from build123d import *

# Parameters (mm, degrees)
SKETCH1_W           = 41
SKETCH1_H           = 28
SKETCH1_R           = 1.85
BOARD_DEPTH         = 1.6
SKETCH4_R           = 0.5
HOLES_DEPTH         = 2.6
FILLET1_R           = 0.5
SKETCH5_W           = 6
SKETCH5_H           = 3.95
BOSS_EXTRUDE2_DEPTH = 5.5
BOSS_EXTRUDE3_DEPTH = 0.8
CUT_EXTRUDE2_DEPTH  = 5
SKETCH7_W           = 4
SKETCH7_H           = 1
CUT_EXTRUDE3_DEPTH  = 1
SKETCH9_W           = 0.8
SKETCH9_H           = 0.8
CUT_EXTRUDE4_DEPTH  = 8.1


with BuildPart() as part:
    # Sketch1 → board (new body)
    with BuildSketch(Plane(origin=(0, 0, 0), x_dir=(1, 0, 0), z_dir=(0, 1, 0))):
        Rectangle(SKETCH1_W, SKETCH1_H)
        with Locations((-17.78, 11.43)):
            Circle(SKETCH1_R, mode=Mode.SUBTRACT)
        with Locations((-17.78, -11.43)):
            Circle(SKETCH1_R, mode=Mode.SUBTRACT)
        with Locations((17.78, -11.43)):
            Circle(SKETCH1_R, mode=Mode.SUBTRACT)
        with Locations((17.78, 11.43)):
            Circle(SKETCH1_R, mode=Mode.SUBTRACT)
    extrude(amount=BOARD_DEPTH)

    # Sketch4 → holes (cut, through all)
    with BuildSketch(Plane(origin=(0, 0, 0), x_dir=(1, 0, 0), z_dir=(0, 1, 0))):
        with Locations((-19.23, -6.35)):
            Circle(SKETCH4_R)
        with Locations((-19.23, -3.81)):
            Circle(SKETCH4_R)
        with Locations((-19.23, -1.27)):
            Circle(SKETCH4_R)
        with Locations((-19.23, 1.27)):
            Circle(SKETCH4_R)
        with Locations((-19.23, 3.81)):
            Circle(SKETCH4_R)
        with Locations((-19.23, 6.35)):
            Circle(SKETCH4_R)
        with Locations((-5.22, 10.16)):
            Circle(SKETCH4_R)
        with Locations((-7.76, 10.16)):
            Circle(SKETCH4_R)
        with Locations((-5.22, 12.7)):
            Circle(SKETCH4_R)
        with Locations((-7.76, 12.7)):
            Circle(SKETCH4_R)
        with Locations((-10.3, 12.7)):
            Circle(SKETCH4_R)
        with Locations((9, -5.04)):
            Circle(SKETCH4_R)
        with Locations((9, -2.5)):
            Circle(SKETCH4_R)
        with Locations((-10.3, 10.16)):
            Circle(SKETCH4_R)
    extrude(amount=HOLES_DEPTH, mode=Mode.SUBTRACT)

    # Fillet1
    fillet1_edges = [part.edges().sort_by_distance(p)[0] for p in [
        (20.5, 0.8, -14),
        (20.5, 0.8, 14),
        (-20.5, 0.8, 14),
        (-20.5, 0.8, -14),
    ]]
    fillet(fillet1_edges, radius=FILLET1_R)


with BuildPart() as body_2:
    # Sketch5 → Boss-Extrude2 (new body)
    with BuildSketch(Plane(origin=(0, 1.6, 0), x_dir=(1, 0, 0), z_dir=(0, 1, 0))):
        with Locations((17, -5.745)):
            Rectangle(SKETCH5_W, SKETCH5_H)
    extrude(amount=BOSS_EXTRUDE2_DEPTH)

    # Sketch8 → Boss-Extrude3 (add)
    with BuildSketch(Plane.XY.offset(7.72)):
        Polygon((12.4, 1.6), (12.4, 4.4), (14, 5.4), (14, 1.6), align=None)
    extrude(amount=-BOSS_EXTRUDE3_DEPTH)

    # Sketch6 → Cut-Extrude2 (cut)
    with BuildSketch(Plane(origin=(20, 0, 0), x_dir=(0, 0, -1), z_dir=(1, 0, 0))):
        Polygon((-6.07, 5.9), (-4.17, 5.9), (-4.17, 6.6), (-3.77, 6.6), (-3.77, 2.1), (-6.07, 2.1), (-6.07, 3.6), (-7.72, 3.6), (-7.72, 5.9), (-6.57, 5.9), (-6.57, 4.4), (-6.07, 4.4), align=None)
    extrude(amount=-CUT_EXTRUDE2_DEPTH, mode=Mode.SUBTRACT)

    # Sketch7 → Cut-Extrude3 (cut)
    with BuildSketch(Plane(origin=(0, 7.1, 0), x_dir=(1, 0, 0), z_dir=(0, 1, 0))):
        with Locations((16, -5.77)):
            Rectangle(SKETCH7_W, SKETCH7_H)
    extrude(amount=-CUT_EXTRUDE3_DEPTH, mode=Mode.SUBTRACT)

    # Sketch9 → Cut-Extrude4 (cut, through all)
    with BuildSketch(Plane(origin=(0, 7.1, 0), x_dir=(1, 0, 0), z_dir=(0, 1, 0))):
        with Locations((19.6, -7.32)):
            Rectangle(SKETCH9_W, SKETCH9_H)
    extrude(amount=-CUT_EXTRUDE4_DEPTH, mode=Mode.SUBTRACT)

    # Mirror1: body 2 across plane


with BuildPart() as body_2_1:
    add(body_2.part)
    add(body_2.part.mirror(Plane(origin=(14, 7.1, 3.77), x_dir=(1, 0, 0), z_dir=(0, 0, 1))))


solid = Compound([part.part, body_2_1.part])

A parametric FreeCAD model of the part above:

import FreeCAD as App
import Part
import Sketcher


def edges_at(feature, points):
    """Names of the edges that pass closest to the given points."""
    edges = feature.Shape.Edges
    near = lambda p: min(range(len(edges)), key=lambda i: edges[i].distToShape(Part.Vertex(*p))[0])
    return sorted({f"Edge{near(p) + 1}" for p in points})


def add_polygon(sketch, points):
    """Adds a closed chain of lines whose ends are joined by coincident constraints."""
    first, n = sketch.GeometryCount, len(points)
    for a, b in zip(points, points[1:] + points[:1]):
        sketch.addGeometry(Part.LineSegment(App.Vector(*a, 0), App.Vector(*b, 0)), False)
    for i in range(n):
        sketch.addConstraint(Sketcher.Constraint("Coincident", first + i, 2, first + (i + 1) % n, 1))

doc = App.newDocument("Part")
params = doc.addObject("Spreadsheet::Sheet", "Params")
for row, (alias, value) in enumerate([
    ("sketch1_diameter", "3.7 mm"),
    ("sketch1_width", "41 mm"),
    ("sketch1_height", "28 mm"),
    ("pad1_length", "1.6 mm"),
    ("sketch2_diameter", "1 mm"),
    ("fillet_radius", "0.5 mm"),
    ("sketch3_width", "6 mm"),
    ("sketch3_height", "3.95 mm"),
    ("pad2_length", "5.5 mm"),
    ("sketch4_width", "1.6 mm"),
    ("sketch4_height", "2.8 mm"),
    ("sketch4_height2", "3.8 mm"),
    ("pad3_length", "0.8 mm"),
    ("sketch5_width", "1.5 mm"),
    ("sketch5_width2", "2.3 mm"),
    ("sketch5_width3", "4.5 mm"),
    ("sketch5_height", "1.9 mm"),
    ("sketch5_height2", "0.5 mm"),
    ("pocket2_length", "5 mm"),
    ("sketch6_width", "4 mm"),
    ("sketch6_height", "1 mm"),
    ("pocket3_length", "1 mm"),
    ("sketch7_width", "0.8 mm"),
], start=1):
    params.set(f"A{row}", alias)
    params.set(f"B{row}", "=" + value)
    params.setAlias(f"B{row}", alias)

body = doc.addObject("PartDesign::Body", "Body")

# Sketch on XZ plane
sketch1 = body.newObject("Sketcher::SketchObject", "Sketch")
sketch1.AttachmentSupport = (doc.getObject("XZ_Plane"), [""])
sketch1.MapMode = "FlatFace"
add_polygon(sketch1, [(-20.5, -14), (-20.5, 14), (20.5, 14), (20.5, -14)])  # lines 0-3
sketch1.addGeometry(Part.Circle(App.Vector(-17.8, 11.4, 0), App.Vector(0, 0, 1), 1.9), False)  # 4
sketch1.addGeometry(Part.Circle(App.Vector(17.8, 11.4, 0), App.Vector(0, 0, 1), 1.9), False)  # 5
sketch1.addGeometry(Part.Circle(App.Vector(-17.8, -11.4, 0), App.Vector(0, 0, 1), 1.9), False)  # 6
sketch1.addGeometry(Part.Circle(App.Vector(17.8, -11.4, 0), App.Vector(0, 0, 1), 1.9), False)  # 7
sketch1.addConstraint([
    Sketcher.Constraint("Vertical", 0),
    Sketcher.Constraint("Horizontal", 1),
    Sketcher.Constraint("Vertical", 2),
    Sketcher.Constraint("Horizontal", 3),
    Sketcher.Constraint("Equal", 4, 5),
    Sketcher.Constraint("Equal", 5, 6),
    Sketcher.Constraint("Equal", 6, 7),
    Sketcher.Constraint("Symmetric", 5, 3, 6, 3, -1, 1),
    Sketcher.Constraint("Symmetric", 4, 3, 7, 3, -1, 1),
    Sketcher.Constraint("Symmetric", 0, 2, 2, 2, -1, 1),
    Sketcher.Constraint("Symmetric", 4, 3, 5, 3, -2),
    Sketcher.Constraint("Diameter", 4, 3.7),
    Sketcher.Constraint("DistanceX", 1, 1, 1, 2, 41.0),
    Sketcher.Constraint("DistanceY", 0, 1, 0, 2, 28.0),
    Sketcher.Constraint("DistanceX", 4, 3, -1, 1, 17.78),
    Sketcher.Constraint("DistanceY", -1, 1, 4, 3, 11.43),
])
sketch1.setExpression("Constraints[15]", "Params.sketch1_diameter")
sketch1.setExpression("Constraints[16]", "Params.sketch1_width")
sketch1.setExpression("Constraints[17]", "Params.sketch1_height")
pad1 = body.newObject("PartDesign::Pad", "Pad")
pad1.Profile = sketch1
pad1.setExpression("Length", "Params.pad1_length")
pad1.Reversed = True

# Sketch on XZ plane
sketch2 = body.newObject("Sketcher::SketchObject", "Sketch001")
sketch2.AttachmentSupport = (doc.getObject("XZ_Plane"), [""])
sketch2.MapMode = "FlatFace"
sketch2.addGeometry([
    Part.Circle(App.Vector(-19.2, 6.3, 0), App.Vector(0, 0, 1), 0.5),  # 0
    Part.Circle(App.Vector(-19.2, 3.8, 0), App.Vector(0, 0, 1), 0.5),  # 1
    Part.Circle(App.Vector(-19.2, 1.3, 0), App.Vector(0, 0, 1), 0.5),  # 2
    Part.Circle(App.Vector(-19.2, -1.3, 0), App.Vector(0, 0, 1), 0.5),  # 3
    Part.Circle(App.Vector(-19.2, -3.8, 0), App.Vector(0, 0, 1), 0.5),  # 4
    Part.Circle(App.Vector(-19.2, -6.3, 0), App.Vector(0, 0, 1), 0.5),  # 5
    Part.Circle(App.Vector(-5.2, -10.2, 0), App.Vector(0, 0, 1), 0.5),  # 6
    Part.Circle(App.Vector(-7.8, -10.2, 0), App.Vector(0, 0, 1), 0.5),  # 7
    Part.Circle(App.Vector(-5.2, -12.7, 0), App.Vector(0, 0, 1), 0.5),  # 8
    Part.Circle(App.Vector(-7.8, -12.7, 0), App.Vector(0, 0, 1), 0.5),  # 9
    Part.Circle(App.Vector(-10.3, -12.7, 0), App.Vector(0, 0, 1), 0.5),  # 10
    Part.Circle(App.Vector(9, 5, 0), App.Vector(0, 0, 1), 0.5),  # 11
    Part.Circle(App.Vector(9, 2.5, 0), App.Vector(0, 0, 1), 0.5),  # 12
    Part.Circle(App.Vector(-10.3, -10.2, 0), App.Vector(0, 0, 1), 0.5),  # 13
], False)
sketch2.addConstraint([
    Sketcher.Constraint("Equal", 0, 1),
    Sketcher.Constraint("Equal", 1, 2),
    Sketcher.Constraint("Equal", 2, 3),
    Sketcher.Constraint("Equal", 3, 4),
    Sketcher.Constraint("Equal", 4, 5),
    Sketcher.Constraint("Equal", 5, 6),
    Sketcher.Constraint("Equal", 6, 7),
    Sketcher.Constraint("Equal", 7, 8),
    Sketcher.Constraint("Equal", 8, 9),
    Sketcher.Constraint("Equal", 9, 10),
    Sketcher.Constraint("Equal", 10, 11),
    Sketcher.Constraint("Equal", 11, 12),
    Sketcher.Constraint("Equal", 12, 13),
    Sketcher.Constraint("Symmetric", 2, 3, 3, 3, -1),
    Sketcher.Constraint("Symmetric", 1, 3, 4, 3, -1),
    Sketcher.Constraint("Symmetric", 0, 3, 5, 3, -1),
    Sketcher.Constraint("Horizontal", 6, 3, 7, 3),
    Sketcher.Constraint("Horizontal", 8, 3, 9, 3),
    Sketcher.Constraint("Horizontal", 9, 3, 10, 3),
    Sketcher.Constraint("Horizontal", 7, 3, 13, 3),
    Sketcher.Constraint("Vertical", 0, 3, 1, 3),
    Sketcher.Constraint("Vertical", 1, 3, 2, 3),
    Sketcher.Constraint("Vertical", 6, 3, 8, 3),
    Sketcher.Constraint("Vertical", 7, 3, 9, 3),
    Sketcher.Constraint("Vertical", 11, 3, 12, 3),
    Sketcher.Constraint("Vertical", 10, 3, 13, 3),
    Sketcher.Constraint("Diameter", 0, 1.0),
    Sketcher.Constraint("DistanceX", -1, 1, 11, 3, 9.0),
    Sketcher.Constraint("DistanceY", 8, 3, -1, 1, 12.7),
    Sketcher.Constraint("DistanceX", 10, 3, -1, 1, 10.3),
    Sketcher.Constraint("DistanceY", -1, 1, 12, 3, 2.5),
    Sketcher.Constraint("DistanceY", 5, 3, 0, 3, 12.7),
    Sketcher.Constraint("DistanceY", 6, 3, 11, 3, 15.2),
    Sketcher.Constraint("DistanceX", 0, 3, -1, 1, 19.23),
    Sketcher.Constraint("DistanceY", -1, 1, 1, 3, 3.81),
    Sketcher.Constraint("DistanceY", -1, 1, 2, 3, 1.27),
    Sketcher.Constraint("DistanceX", 6, 3, -1, 1, 5.22),
    Sketcher.Constraint("DistanceY", 6, 3, -1, 1, 10.16),
    Sketcher.Constraint("DistanceX", 7, 3, -1, 1, 7.76),
])
sketch2.setExpression("Constraints[26]", "Params.sketch2_diameter")
pocket1 = body.newObject("PartDesign::Pocket", "Pocket")
pocket1.Profile = sketch2
pocket1.Type = "ThroughAll"
doc.recompute()

fillet = body.newObject("PartDesign::Fillet", "Fillet")
fillet.Base = (pocket1, edges_at(pocket1, [
    (20.5, 0.8, -14),
    (20.5, 0.8, 14),
    (-20.5, 0.8, 14),
    (-20.5, 0.8, -14),
]))
fillet.setExpression("Radius", "Params.fillet_radius")
body2 = doc.addObject("PartDesign::Body", "Body001")

# Sketch on XZ plane
sketch3 = body2.newObject("Sketcher::SketchObject", "Sketch002")
sketch3.AttachmentSupport = (doc.getObject("XZ_Plane001"), [""])
sketch3.MapMode = "FlatFace"
sketch3.AttachmentOffset = App.Placement(App.Vector(0, 0, -1.6), App.Rotation())
add_polygon(sketch3, [(14, 3.8), (14, 7.7), (20, 7.7), (20, 3.8)])  # lines 0-3
sketch3.addConstraint([
    Sketcher.Constraint("Vertical", 0),
    Sketcher.Constraint("Horizontal", 1),
    Sketcher.Constraint("Vertical", 2),
    Sketcher.Constraint("Horizontal", 3),
    Sketcher.Constraint("DistanceX", 1, 1, 1, 2, 6.0),
    Sketcher.Constraint("DistanceX", -1, 1, 0, 2, 14.0),
    Sketcher.Constraint("DistanceY", 0, 1, 0, 2, 3.95),
    Sketcher.Constraint("DistanceY", -1, 1, 0, 2, 7.72),
])
sketch3.setExpression("Constraints[8]", "Params.sketch3_width")
sketch3.setExpression("Constraints[10]", "Params.sketch3_height")
pad2 = body2.newObject("PartDesign::Pad", "Pad001")
pad2.Profile = sketch3
pad2.setExpression("Length", "Params.pad2_length")
pad2.Reversed = True

# Sketch on XY plane
sketch4 = body2.newObject("Sketcher::SketchObject", "Sketch003")
sketch4.AttachmentSupport = (doc.getObject("XY_Plane001"), [""])
sketch4.MapMode = "FlatFace"
sketch4.AttachmentOffset = App.Placement(App.Vector(0, 0, 7.72), App.Rotation())
add_polygon(sketch4, [(12.4, 4.4), (12.4, 1.6), (14, 1.6), (14, 5.4)])  # lines 0-3
sketch4.addConstraint([
    Sketcher.Constraint("Vertical", 0),
    Sketcher.Constraint("Horizontal", 1),
    Sketcher.Constraint("Vertical", 2),
    Sketcher.Constraint("DistanceX", 1, 1, 1, 2, 1.6),
    Sketcher.Constraint("DistanceY", 0, 2, 0, 1, 2.8),
    Sketcher.Constraint("DistanceY", 2, 1, 2, 2, 3.8),
    Sketcher.Constraint("DistanceX", -1, 1, 1, 2, 14.0),
    Sketcher.Constraint("DistanceY", -1, 1, 0, 2, 1.6),
])
sketch4.setExpression("Constraints[7]", "Params.sketch4_width")
sketch4.setExpression("Constraints[8]", "Params.sketch4_height")
sketch4.setExpression("Constraints[9]", "Params.sketch4_height2")
pad3 = body2.newObject("PartDesign::Pad", "Pad002")
pad3.Profile = sketch4
pad3.setExpression("Length", "Params.pad3_length")
pad3.Reversed = True

# Sketch on YZ plane
sketch5 = body2.newObject("Sketcher::SketchObject", "Sketch004")
sketch5.AttachmentSupport = (doc.getObject("YZ_Plane001"), [""])
sketch5.MapMode = "FlatFace"
sketch5.AttachmentOffset = App.Placement(App.Vector(0, 0, 20), App.Rotation())
add_polygon(sketch5, [(5.9, 4.17), (5.9, 6.07), (4.4, 6.07), (4.4, 6.57), (5.9, 6.57), (5.9, 7.72), (3.6, 7.72), (3.6, 6.07), (2.1, 6.07), (2.1, 3.77), (6.6, 3.77), (6.6, 4.17)])  # lines 0-11
sketch5.addConstraint([
    Sketcher.Constraint("Vertical", 0),
    Sketcher.Constraint("Horizontal", 1),
    Sketcher.Constraint("Vertical", 2),
    Sketcher.Constraint("Horizontal", 3),
    Sketcher.Constraint("Vertical", 4),
    Sketcher.Constraint("Horizontal", 5),
    Sketcher.Constraint("Vertical", 6),
    Sketcher.Constraint("Horizontal", 7),
    Sketcher.Constraint("Vertical", 8),
    Sketcher.Constraint("Horizontal", 9),
    Sketcher.Constraint("Vertical", 10),
    Sketcher.Constraint("Horizontal", 11),
    Sketcher.Constraint("Horizontal", 1, 2, 6, 2),
    Sketcher.Constraint("Vertical", 0, 2, 3, 2),
    Sketcher.Constraint("Equal", 3, 7),
    Sketcher.Constraint("Equal", 5, 8),
    Sketcher.Constraint("DistanceX", 1, 2, 1, 1, 1.5),
    Sketcher.Constraint("DistanceX", 5, 2, 5, 1, 2.3),
    Sketcher.Constraint("DistanceX", 9, 1, 9, 2, 4.5),
    Sketcher.Constraint("DistanceY", 0, 1, 0, 2, 1.9),
    Sketcher.Constraint("DistanceY", 2, 1, 2, 2, 0.5),
    Sketcher.Constraint("DistanceY", 4, 1, 4, 2, 1.15),
    Sketcher.Constraint("DistanceX", -1, 1, 0, 2, 5.9),
    Sketcher.Constraint("DistanceY", -1, 1, 0, 2, 6.07),
])
sketch5.setExpression("Constraints[28]", "Params.sketch5_width")
sketch5.setExpression("Constraints[29]", "Params.sketch5_width2")
sketch5.setExpression("Constraints[30]", "Params.sketch5_width3")
sketch5.setExpression("Constraints[31]", "Params.sketch5_height")
sketch5.setExpression("Constraints[32]", "Params.sketch5_height2")
pocket2 = body2.newObject("PartDesign::Pocket", "Pocket001")
pocket2.Profile = sketch5
pocket2.setExpression("Length", "Params.pocket2_length")

# Sketch on XZ plane
sketch6 = body2.newObject("Sketcher::SketchObject", "Sketch005")
sketch6.AttachmentSupport = (doc.getObject("XZ_Plane001"), [""])
sketch6.MapMode = "FlatFace"
sketch6.AttachmentOffset = App.Placement(App.Vector(0, 0, -7.1), App.Rotation())
add_polygon(sketch6, [(14, 5.3), (14, 6.3), (18, 6.3), (18, 5.3)])  # lines 0-3
sketch6.addConstraint([
    Sketcher.Constraint("Vertical", 0),
    Sketcher.Constraint("Horizontal", 1),
    Sketcher.Constraint("Vertical", 2),
    Sketcher.Constraint("Horizontal", 3),
    Sketcher.Constraint("DistanceX", 1, 1, 1, 2, 4.0),
    Sketcher.Constraint("DistanceY", 0, 1, 0, 2, 1.0),
    Sketcher.Constraint("DistanceX", -1, 1, 0, 2, 14.0),
    Sketcher.Constraint("DistanceY", -1, 1, 0, 2, 6.27),
])
sketch6.setExpression("Constraints[8]", "Params.sketch6_width")
sketch6.setExpression("Constraints[9]", "Params.sketch6_height")
pocket3 = body2.newObject("PartDesign::Pocket", "Pocket002")
pocket3.Profile = sketch6
pocket3.setExpression("Length", "Params.pocket3_length")
pocket3.Reversed = True

# Sketch on XZ plane
sketch7 = body2.newObject("Sketcher::SketchObject", "Sketch006")
sketch7.AttachmentSupport = (doc.getObject("XZ_Plane001"), [""])
sketch7.MapMode = "FlatFace"
sketch7.AttachmentOffset = App.Placement(App.Vector(0, 0, -7.1), App.Rotation())
add_polygon(sketch7, [(19.2, 6.9), (19.2, 7.7), (20, 7.7), (20, 6.9)])  # lines 0-3
sketch7.addConstraint([
    Sketcher.Constraint("Vertical", 0),
    Sketcher.Constraint("Horizontal", 1),
    Sketcher.Constraint("Vertical", 2),
    Sketcher.Constraint("Horizontal", 3),
    Sketcher.Constraint("Equal", 3, 0),
    Sketcher.Constraint("DistanceX", 1, 1, 1, 2, 0.8),
    Sketcher.Constraint("DistanceX", -1, 1, 1, 2, 20.0),
    Sketcher.Constraint("DistanceY", -1, 1, 0, 2, 7.72),
])
sketch7.setExpression("Constraints[9]", "Params.sketch7_width")
pocket4 = body2.newObject("PartDesign::Pocket", "Pocket003")
pocket4.Profile = sketch7
pocket4.Type = "ThroughAll"
pocket4.Reversed = True
body3 = doc.addObject("PartDesign::Body", "Body002")
doc.recompute()

body3.BaseFeature = body2
doc.recompute()

mirroring = doc.addObject("Part::Mirroring", "Mirroring")
mirroring.Source = body2
mirroring.Base = App.Vector(14, 7.1, 3.77)
mirroring.Normal = App.Vector(0, 0, 1)
body4 = doc.addObject("PartDesign::Body", "Body003")
body4.BaseFeature = mirroring
boolean = body3.newObject("PartDesign::Boolean", "Boolean")
boolean.Type = "Fuse"
boolean.addObjects([body4])
doc.recompute()
mirroring.Visibility = False

doc.recompute()
